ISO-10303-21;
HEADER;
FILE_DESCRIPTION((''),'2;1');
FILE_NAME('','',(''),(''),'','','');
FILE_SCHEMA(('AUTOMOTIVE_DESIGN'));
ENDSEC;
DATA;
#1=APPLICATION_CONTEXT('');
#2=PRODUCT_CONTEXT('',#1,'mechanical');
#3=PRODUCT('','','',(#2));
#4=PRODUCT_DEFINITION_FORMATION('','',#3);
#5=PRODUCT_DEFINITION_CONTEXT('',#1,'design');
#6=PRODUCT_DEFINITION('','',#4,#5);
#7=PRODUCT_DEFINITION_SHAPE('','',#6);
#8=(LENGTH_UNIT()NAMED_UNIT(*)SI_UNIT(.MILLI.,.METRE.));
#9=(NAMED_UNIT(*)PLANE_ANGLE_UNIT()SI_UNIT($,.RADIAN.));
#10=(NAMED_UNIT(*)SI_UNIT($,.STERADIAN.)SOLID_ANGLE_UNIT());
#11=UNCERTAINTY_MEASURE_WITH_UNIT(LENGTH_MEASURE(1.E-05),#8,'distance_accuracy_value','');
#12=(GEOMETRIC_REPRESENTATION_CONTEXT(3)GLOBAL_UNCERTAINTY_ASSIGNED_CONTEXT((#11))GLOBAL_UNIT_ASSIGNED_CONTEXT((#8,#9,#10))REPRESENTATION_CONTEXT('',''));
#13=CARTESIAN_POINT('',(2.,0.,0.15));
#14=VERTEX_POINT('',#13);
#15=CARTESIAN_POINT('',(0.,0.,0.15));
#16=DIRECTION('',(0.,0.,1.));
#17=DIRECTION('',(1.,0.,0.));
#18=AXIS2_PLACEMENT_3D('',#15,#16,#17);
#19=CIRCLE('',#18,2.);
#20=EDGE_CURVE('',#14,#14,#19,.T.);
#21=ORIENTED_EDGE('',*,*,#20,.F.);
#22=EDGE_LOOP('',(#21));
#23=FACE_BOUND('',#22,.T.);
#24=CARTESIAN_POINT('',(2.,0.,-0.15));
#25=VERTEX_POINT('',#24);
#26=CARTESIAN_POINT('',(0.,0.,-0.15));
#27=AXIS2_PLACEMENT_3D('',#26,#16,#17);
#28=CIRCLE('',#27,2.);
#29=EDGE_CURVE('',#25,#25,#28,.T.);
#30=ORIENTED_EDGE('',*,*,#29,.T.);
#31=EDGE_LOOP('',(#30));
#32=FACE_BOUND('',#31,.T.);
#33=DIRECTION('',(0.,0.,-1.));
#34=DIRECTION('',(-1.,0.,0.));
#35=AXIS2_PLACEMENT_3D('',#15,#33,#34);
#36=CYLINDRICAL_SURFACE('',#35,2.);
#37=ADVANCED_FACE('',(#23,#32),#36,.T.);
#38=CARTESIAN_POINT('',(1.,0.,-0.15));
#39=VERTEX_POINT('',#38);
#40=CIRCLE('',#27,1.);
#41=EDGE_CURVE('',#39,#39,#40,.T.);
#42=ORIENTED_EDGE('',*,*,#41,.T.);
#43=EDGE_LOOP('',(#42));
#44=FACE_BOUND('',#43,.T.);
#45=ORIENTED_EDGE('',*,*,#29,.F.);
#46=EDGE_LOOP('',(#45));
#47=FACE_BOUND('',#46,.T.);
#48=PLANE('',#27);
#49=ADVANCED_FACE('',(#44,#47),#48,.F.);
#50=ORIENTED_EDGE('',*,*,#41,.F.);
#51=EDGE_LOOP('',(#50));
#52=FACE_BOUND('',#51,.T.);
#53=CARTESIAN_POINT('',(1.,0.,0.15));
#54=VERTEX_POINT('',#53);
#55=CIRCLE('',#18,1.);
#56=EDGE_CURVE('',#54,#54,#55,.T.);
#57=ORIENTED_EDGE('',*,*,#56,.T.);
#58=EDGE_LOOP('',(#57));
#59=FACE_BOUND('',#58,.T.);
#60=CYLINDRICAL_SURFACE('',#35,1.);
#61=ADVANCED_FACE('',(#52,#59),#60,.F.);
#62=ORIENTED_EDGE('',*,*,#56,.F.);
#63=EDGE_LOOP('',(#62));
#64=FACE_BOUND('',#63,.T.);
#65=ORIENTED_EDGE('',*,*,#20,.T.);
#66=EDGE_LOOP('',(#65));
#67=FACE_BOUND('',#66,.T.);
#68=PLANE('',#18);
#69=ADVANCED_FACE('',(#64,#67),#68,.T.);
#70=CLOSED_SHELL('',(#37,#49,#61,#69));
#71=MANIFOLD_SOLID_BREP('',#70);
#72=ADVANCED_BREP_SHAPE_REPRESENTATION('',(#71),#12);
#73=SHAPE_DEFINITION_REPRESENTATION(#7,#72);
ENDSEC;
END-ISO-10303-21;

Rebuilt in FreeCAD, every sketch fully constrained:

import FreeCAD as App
import Part
import Sketcher

V = App.Vector

doc = App.newDocument("Part")
body = doc.addObject("PartDesign::Body", "Body")

# Sketch on XY plane
sketch1 = body.newObject("Sketcher::SketchObject", "Sketch")
sketch1.AttachmentSupport = (doc.getObject("XY_Plane"), [""])
sketch1.MapMode = "FlatFace"
sketch1.addGeometry([
    Part.Circle(V(0, 0, 0), V(0, 0, 1), 2),
    Part.Circle(V(0, 0, 0), V(0, 0, 1), 1),
], False)
sketch1.addConstraint([
    Sketcher.Constraint("Coincident", 0, 3, -1, 1),
    Sketcher.Constraint("Coincident", 1, 3, -1, 1),
    Sketcher.Constraint("Diameter", 0, 4.0),
    Sketcher.Constraint("Diameter", 1, 2.0),
])
pad1 = body.newObject("PartDesign::Pad", "Pad")
pad1.Profile = sketch1
pad1.Length = 0.3
pad1.Midplane = True

doc.recompute()
